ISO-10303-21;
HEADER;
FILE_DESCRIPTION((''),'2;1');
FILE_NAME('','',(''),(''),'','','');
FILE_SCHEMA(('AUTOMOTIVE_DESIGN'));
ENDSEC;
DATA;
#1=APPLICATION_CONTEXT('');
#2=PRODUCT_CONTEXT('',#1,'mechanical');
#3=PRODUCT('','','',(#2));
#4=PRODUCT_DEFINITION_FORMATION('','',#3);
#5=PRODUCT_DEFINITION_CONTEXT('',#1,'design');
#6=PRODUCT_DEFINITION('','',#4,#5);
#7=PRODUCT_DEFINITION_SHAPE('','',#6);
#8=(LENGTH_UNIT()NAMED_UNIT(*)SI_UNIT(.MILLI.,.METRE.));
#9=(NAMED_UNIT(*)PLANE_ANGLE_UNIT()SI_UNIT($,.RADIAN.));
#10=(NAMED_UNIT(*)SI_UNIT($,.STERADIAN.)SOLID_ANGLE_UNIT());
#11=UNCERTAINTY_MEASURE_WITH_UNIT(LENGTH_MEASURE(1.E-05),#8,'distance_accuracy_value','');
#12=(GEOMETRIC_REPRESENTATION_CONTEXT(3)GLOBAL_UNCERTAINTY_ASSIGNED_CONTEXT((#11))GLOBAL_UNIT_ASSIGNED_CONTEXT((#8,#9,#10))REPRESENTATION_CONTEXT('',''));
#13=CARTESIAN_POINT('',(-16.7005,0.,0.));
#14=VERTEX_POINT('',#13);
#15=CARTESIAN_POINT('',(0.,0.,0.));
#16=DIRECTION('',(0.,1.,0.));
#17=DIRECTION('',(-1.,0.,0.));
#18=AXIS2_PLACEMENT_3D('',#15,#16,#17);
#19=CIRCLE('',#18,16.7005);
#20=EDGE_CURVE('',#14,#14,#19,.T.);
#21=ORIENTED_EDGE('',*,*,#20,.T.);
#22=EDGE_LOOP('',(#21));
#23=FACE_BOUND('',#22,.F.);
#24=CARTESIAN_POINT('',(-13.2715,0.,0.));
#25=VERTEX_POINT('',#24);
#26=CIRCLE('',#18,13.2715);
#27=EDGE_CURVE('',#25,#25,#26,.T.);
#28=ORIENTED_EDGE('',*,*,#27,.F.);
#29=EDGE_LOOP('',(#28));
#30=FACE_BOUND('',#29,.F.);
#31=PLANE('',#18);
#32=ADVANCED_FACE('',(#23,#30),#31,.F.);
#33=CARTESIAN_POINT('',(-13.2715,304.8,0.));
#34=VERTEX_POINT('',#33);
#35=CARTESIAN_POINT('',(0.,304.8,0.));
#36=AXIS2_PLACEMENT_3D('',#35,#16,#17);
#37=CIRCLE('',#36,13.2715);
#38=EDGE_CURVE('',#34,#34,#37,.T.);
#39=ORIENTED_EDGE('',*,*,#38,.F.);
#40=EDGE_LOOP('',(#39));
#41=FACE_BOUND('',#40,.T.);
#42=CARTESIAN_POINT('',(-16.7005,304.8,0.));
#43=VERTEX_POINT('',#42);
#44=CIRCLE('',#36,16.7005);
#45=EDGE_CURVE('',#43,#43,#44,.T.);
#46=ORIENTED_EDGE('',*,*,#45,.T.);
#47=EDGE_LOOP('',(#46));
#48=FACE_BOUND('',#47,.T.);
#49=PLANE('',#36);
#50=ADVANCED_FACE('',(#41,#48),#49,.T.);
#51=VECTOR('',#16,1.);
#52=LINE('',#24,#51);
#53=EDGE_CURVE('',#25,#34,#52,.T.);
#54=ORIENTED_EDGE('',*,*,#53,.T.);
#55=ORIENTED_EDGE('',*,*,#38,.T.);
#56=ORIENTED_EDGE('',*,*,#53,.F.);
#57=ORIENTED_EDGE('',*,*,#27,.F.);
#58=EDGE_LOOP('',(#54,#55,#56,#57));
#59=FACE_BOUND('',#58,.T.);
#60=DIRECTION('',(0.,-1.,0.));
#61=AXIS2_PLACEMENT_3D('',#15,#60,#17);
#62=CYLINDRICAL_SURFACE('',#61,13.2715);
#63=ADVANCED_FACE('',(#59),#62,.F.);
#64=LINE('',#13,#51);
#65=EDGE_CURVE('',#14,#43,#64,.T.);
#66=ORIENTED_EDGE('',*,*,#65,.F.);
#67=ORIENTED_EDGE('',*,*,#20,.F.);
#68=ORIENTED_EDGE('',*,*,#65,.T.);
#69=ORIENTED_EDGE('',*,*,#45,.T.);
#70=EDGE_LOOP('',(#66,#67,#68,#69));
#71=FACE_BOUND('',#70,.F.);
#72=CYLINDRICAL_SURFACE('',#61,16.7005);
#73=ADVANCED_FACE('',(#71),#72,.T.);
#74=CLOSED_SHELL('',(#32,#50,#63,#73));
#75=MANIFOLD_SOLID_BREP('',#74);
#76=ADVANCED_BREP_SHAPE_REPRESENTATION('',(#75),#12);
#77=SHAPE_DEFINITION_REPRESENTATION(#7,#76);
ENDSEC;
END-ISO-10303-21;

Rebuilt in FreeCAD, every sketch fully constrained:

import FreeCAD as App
import Part
import Sketcher
from FreeCAD import Vector
Q = App.Units.Quantity

doc = App.newDocument("Part")
body = doc.addObject("PartDesign::Body", "Body")

sketch1 = doc.addObject("Sketcher::SketchObject", "Sketch")
body.addObject(sketch1)
sketch1.AttachmentSupport = (doc.XZ_Plane, [""])
sketch1.MapMode = "FlatFace"
sketch1.addGeometry([
    Part.Circle(Vector(0, 0, 0), Vector(0, 0, 1), 17),
    Part.Circle(Vector(0, 0, 0), Vector(0, 0, 1), 13),
], False)
sketch1.addConstraint([
    Sketcher.Constraint("Coincident", 0, 3, -1, 1),
    Sketcher.Constraint("Coincident", 1, 3, -1, 1),
    Sketcher.Constraint("Diameter", 0, Q("1.315 in")),
    Sketcher.Constraint("Diameter", 1, Q("1.045 in")),
])
pad1 = doc.addObject("PartDesign::Pad", "Pad")
body.addObject(pad1)
pad1.Profile = sketch1
pad1.Length = Q("12 in")
pad1.Reversed = True

doc.recompute()
